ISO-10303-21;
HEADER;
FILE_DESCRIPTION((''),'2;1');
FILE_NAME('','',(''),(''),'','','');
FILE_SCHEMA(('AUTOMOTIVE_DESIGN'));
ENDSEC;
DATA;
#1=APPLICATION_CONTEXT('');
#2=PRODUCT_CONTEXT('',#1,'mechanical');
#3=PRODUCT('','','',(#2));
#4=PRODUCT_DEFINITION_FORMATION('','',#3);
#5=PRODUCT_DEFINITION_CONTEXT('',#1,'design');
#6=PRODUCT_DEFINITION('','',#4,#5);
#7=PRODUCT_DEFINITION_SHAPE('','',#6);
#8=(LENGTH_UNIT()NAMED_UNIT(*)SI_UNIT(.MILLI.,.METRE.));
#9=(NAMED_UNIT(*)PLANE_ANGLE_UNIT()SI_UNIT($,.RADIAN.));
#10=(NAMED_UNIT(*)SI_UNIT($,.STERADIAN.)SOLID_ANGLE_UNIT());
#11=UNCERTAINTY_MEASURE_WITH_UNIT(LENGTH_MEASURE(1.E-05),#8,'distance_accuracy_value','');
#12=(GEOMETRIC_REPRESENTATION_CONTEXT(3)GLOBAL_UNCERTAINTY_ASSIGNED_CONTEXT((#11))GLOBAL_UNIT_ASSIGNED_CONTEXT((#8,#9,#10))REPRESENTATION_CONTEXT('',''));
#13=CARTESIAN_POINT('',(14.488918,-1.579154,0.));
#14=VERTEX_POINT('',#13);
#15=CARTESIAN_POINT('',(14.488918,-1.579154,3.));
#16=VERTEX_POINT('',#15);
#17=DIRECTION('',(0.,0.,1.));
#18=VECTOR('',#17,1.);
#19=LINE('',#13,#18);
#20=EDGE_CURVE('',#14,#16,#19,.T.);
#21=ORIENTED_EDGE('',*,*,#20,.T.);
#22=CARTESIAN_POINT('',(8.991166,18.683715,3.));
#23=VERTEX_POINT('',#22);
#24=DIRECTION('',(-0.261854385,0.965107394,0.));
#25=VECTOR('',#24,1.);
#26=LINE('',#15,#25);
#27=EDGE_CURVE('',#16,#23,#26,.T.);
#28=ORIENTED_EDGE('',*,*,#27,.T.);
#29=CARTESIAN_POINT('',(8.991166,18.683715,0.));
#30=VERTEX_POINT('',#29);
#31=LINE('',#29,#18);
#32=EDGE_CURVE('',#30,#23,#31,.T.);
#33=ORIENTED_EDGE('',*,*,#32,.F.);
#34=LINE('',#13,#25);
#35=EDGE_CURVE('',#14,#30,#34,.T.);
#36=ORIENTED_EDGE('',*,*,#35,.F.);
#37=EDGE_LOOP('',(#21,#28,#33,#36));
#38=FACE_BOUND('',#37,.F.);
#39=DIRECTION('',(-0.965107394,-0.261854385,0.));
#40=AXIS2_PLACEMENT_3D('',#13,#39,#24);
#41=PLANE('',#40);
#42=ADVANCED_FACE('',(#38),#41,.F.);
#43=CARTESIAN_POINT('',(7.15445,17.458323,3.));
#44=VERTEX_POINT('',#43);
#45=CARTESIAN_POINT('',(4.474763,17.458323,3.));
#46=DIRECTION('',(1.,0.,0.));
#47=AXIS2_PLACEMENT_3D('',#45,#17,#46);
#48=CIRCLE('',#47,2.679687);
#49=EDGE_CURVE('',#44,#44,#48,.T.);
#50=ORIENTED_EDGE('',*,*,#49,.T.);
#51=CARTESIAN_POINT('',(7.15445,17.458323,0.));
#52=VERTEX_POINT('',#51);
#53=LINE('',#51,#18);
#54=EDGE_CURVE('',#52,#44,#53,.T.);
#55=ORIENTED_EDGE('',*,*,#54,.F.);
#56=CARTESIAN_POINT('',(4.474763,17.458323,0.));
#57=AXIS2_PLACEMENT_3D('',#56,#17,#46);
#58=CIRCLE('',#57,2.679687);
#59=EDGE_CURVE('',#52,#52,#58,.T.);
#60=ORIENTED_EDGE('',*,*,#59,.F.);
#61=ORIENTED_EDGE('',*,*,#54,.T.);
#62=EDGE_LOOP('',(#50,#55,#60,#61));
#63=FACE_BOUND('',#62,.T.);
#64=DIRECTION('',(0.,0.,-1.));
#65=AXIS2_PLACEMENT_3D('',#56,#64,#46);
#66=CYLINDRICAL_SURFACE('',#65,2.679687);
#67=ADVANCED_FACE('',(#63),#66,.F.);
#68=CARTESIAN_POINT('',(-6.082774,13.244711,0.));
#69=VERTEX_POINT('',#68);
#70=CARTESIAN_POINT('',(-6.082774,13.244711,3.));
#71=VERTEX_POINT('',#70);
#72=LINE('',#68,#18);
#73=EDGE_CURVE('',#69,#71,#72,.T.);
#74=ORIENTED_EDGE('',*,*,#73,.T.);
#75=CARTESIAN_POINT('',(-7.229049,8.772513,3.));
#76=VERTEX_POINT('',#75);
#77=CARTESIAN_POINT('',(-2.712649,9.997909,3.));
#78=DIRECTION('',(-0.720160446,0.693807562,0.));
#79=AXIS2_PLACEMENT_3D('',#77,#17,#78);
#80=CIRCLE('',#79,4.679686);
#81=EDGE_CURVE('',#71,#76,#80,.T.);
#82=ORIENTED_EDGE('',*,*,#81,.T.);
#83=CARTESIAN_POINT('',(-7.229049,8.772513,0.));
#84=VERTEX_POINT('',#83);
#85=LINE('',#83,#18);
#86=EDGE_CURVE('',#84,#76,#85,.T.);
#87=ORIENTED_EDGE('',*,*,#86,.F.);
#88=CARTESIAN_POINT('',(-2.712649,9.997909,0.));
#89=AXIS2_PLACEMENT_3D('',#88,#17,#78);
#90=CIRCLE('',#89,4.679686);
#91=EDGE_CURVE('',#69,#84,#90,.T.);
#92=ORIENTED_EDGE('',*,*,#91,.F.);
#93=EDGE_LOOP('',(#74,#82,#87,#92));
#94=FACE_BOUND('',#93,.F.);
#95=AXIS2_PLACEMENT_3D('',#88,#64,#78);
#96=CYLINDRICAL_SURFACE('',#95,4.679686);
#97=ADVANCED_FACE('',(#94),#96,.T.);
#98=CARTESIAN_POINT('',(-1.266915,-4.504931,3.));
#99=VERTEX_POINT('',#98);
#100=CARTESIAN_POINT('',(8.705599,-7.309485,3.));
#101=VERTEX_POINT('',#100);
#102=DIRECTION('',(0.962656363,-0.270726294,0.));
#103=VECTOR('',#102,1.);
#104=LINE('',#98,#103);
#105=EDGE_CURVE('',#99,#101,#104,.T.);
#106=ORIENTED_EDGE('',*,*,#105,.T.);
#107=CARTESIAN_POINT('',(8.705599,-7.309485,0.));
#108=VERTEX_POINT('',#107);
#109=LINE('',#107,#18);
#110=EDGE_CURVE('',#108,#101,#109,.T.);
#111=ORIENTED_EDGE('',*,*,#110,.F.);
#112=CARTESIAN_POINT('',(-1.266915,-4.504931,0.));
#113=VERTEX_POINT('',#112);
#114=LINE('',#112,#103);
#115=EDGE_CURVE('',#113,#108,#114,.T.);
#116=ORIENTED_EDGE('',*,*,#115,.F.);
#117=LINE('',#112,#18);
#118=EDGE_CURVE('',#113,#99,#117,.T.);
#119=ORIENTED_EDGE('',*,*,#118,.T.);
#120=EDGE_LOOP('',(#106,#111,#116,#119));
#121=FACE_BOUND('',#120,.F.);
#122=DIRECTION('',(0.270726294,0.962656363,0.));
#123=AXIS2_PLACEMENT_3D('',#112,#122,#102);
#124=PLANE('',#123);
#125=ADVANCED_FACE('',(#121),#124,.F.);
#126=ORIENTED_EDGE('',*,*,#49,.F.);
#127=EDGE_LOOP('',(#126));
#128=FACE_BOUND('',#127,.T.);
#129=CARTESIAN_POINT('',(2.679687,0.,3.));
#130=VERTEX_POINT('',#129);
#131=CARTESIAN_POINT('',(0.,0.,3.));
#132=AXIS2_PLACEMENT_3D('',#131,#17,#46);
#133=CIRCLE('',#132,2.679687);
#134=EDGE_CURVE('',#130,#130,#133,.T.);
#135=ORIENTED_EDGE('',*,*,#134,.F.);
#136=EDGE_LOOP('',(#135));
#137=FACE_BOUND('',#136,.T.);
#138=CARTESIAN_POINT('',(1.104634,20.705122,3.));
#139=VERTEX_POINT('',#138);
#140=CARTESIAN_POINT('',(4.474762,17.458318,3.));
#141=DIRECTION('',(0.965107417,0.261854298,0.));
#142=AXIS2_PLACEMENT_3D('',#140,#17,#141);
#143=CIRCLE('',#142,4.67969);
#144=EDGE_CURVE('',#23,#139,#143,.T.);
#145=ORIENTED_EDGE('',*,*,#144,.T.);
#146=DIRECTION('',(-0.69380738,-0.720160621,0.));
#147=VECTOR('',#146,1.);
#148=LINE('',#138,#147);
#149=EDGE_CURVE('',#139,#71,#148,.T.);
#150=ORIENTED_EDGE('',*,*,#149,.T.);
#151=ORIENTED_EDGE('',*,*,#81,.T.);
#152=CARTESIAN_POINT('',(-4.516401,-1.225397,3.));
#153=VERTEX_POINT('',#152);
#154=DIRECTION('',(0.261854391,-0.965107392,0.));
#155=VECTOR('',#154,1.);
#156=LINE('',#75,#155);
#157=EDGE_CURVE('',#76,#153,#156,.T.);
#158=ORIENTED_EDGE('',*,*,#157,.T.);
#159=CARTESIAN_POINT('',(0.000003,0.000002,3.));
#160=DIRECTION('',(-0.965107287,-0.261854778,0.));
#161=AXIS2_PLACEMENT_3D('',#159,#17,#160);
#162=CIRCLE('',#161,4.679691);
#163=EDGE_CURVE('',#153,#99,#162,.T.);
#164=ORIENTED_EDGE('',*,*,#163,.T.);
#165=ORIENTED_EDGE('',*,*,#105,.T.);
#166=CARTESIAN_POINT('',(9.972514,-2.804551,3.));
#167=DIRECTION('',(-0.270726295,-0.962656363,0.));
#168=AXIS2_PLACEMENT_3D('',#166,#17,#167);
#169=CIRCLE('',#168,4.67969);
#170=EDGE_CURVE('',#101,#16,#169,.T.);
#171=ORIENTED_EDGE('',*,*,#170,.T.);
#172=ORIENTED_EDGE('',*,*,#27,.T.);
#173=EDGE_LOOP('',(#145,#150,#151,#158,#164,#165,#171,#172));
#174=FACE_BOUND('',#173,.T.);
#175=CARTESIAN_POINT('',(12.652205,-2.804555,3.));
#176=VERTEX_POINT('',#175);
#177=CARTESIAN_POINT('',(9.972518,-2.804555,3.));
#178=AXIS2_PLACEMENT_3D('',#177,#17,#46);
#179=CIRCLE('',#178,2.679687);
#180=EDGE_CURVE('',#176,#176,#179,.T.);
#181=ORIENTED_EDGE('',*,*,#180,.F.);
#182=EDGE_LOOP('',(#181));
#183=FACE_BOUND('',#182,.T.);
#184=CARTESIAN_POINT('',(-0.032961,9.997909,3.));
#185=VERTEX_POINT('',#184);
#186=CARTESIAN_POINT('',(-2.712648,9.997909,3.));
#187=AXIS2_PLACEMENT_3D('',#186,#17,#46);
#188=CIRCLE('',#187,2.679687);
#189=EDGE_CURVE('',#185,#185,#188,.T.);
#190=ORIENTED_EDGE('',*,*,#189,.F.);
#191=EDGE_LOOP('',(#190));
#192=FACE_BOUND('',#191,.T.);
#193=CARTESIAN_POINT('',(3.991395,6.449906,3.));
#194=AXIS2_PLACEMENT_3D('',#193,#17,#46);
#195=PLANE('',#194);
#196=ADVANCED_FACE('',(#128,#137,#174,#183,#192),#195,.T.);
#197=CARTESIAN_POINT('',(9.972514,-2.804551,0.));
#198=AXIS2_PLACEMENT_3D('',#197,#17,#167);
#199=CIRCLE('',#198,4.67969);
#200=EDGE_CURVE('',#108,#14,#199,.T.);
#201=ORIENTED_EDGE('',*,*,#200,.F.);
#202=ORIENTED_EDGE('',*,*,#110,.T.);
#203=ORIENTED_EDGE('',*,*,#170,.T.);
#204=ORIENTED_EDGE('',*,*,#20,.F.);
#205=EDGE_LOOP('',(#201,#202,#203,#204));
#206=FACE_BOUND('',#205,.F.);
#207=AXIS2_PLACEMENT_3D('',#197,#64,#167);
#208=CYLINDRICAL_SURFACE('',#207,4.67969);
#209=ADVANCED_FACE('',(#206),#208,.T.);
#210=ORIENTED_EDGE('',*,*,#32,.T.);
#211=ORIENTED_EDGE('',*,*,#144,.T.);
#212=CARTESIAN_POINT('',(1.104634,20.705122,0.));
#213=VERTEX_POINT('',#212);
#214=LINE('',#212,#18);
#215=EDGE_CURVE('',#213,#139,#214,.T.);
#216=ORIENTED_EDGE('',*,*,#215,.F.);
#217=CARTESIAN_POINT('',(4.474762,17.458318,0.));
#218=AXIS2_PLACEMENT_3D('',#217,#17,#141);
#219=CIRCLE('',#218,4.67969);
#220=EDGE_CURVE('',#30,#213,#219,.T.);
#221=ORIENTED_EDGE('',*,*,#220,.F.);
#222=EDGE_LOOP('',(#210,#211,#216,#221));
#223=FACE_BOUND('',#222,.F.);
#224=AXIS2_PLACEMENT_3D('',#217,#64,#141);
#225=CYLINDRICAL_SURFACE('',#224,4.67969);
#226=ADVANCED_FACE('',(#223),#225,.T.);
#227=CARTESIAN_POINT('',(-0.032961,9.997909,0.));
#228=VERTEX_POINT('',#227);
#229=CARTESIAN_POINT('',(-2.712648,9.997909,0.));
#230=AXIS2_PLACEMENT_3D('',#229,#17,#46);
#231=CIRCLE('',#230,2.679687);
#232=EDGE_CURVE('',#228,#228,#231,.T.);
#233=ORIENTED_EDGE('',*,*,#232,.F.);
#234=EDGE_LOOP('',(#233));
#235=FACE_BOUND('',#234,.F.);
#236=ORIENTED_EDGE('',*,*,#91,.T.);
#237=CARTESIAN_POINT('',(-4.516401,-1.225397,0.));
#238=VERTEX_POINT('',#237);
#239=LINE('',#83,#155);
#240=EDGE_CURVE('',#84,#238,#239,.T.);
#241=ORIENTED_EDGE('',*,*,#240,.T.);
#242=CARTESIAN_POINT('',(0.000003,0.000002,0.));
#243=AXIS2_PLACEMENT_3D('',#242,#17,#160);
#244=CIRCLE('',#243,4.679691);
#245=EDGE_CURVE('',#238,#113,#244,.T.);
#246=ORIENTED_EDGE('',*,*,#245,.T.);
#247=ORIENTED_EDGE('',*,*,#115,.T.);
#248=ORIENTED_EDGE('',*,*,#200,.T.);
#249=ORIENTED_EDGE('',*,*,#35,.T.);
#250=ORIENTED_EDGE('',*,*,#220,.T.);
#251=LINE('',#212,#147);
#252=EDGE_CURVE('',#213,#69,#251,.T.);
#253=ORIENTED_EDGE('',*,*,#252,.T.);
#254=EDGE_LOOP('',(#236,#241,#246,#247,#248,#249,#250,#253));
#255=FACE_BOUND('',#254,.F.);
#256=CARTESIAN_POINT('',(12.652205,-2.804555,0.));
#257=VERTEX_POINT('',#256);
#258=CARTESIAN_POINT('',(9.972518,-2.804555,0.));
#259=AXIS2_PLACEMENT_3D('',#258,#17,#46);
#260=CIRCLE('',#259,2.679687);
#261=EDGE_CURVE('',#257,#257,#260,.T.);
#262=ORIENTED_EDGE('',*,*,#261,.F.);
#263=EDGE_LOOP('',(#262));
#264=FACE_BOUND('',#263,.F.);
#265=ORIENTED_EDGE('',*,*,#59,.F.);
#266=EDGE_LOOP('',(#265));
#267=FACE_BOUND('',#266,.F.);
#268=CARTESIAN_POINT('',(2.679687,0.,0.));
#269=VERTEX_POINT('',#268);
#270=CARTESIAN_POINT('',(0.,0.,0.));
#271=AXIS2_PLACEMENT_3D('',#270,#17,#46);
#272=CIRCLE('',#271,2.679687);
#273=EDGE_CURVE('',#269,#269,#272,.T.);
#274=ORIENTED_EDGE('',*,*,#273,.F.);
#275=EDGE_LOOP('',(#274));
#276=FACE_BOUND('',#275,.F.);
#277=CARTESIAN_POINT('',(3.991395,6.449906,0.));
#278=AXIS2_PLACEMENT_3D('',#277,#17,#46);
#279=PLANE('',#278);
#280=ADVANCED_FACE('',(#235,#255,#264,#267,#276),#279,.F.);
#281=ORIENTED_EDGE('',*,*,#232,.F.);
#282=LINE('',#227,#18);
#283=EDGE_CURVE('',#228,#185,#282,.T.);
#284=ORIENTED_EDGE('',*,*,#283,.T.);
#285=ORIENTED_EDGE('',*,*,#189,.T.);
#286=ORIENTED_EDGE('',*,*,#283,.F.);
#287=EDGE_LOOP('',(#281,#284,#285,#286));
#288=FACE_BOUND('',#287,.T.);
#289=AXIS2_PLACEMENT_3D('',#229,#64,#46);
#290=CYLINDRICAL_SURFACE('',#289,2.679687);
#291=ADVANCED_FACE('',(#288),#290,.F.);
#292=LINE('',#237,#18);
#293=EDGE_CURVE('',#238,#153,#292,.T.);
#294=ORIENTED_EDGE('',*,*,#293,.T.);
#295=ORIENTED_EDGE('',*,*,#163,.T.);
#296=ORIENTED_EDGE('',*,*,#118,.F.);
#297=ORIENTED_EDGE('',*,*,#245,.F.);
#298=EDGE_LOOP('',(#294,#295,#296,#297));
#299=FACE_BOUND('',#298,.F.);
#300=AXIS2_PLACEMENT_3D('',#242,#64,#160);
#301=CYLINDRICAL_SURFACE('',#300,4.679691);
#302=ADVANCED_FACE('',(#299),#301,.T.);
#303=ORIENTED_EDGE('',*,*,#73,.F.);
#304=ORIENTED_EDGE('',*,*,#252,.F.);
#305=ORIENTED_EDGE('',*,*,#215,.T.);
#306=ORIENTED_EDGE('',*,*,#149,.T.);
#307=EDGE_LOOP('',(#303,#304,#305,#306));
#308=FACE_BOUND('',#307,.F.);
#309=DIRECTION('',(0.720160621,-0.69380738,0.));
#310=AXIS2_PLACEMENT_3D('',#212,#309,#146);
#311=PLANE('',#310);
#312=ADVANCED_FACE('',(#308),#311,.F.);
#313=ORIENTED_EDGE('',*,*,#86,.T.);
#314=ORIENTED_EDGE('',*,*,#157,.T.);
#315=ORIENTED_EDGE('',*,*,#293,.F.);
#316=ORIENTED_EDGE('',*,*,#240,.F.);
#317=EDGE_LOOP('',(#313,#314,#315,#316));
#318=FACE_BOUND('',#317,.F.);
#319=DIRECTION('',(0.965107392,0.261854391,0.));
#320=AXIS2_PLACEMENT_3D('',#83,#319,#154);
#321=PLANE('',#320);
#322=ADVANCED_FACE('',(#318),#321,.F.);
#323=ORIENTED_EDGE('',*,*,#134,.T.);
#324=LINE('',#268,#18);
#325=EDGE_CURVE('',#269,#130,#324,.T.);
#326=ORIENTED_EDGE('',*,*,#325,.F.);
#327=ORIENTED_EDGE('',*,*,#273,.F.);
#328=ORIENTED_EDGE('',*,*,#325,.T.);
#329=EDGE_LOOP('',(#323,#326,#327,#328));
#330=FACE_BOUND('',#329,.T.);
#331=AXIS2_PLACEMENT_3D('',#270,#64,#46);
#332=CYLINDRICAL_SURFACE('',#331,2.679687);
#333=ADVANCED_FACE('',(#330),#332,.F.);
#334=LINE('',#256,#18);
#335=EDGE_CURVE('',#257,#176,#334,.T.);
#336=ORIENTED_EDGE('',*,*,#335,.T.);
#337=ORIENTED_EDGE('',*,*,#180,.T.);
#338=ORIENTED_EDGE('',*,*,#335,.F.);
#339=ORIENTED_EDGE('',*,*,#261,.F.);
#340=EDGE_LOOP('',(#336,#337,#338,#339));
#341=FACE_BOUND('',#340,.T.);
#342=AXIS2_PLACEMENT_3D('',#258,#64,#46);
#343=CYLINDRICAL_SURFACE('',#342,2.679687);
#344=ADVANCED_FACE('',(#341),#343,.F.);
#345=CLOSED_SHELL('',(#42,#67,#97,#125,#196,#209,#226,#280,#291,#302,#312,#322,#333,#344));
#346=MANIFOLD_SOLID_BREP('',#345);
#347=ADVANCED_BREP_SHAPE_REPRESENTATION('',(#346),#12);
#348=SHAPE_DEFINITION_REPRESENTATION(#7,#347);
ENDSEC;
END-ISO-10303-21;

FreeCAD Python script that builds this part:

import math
import FreeCAD as App
import Part
import Sketcher

V = App.Vector
Q = App.Units.Quantity

doc = App.newDocument("Part")
body = doc.addObject("PartDesign::Body", "Body")

sketch1 = body.newObject("Sketcher::SketchObject", "Sketch")
sketch1.AttachmentSupport = (doc.getObject("XY_Plane"), [""])
sketch1.MapMode = "FlatFace"
sketch1.addGeometry(Part.LineSegment(V(1.104634, 20.705122, 0), V(-6.082774, 13.244711, 0)), False)
sketch1.addGeometry(Part.ArcOfCircle(Part.Circle(V(-2.712649, 9.997909, 0), V(0, 0, 1), 4.679686), math.radians(136.067729), math.radians(195.18012)), False)
sketch1.addGeometry(Part.LineSegment(V(-7.229049, 8.772513, 0), V(-4.516401, -1.225397, 0)), False)
sketch1.addGeometry(Part.ArcOfCircle(Part.Circle(V(0.000003, 0.000002, 0), V(0, 0, 1), 4.679691), math.radians(-164.819853), math.radians(-105.707519)), False)
sketch1.addGeometry(Part.LineSegment(V(-1.266915, -4.504931, 0), V(8.705599, -7.309485, 0)), False)
sketch1.addGeometry(Part.ArcOfCircle(Part.Circle(V(9.972514, -2.804551, 0), V(0, 0, 1), 4.67969), math.radians(-105.70749), math.radians(15.180122)), False)
sketch1.addGeometry(Part.LineSegment(V(14.488918, -1.579154, 0), V(8.991166, 18.683715, 0)), False)
sketch1.addGeometry(Part.ArcOfCircle(Part.Circle(V(4.474762, 17.458318, 0), V(0, 0, 1), 4.67969), math.radians(15.180118), math.radians(136.067737)), False)
sketch1.addGeometry(Part.Circle(V(0, 0, 0), V(0, 0, 1), 2.679687), False)
sketch1.addGeometry(Part.Circle(V(9.972518, -2.804555, 0), V(0, 0, 1), 2.679687), False)
sketch1.addGeometry(Part.Circle(V(-2.712648, 9.997909, 0), V(0, 0, 1), 2.679687), False)
sketch1.addGeometry(Part.Circle(V(4.474763, 17.458323, 0), V(0, 0, 1), 2.679687), False)
sketch1.addConstraint(Sketcher.Constraint("Coincident", 0, 2, 1, 1))
sketch1.addConstraint(Sketcher.Constraint("Coincident", 1, 2, 2, 1))
sketch1.addConstraint(Sketcher.Constraint("Coincident", 2, 2, 3, 1))
sketch1.addConstraint(Sketcher.Constraint("Coincident", 3, 2, 4, 1))
sketch1.addConstraint(Sketcher.Constraint("Coincident", 4, 2, 5, 1))
sketch1.addConstraint(Sketcher.Constraint("Coincident", 5, 2, 6, 1))
sketch1.addConstraint(Sketcher.Constraint("Coincident", 6, 2, 7, 1))
sketch1.addConstraint(Sketcher.Constraint("Coincident", 7, 2, 0, 1))
sketch1.addConstraint(Sketcher.Constraint("Coincident", 3, 3, -1, 1))
sketch1.addConstraint(Sketcher.Constraint("Coincident", 8, 3, -1, 1))
sketch1.addConstraint(Sketcher.Constraint("Coincident", 9, 3, 5, 3))
sketch1.addConstraint(Sketcher.Constraint("Coincident", 10, 3, 1, 3))
sketch1.addConstraint(Sketcher.Constraint("Coincident", 11, 3, 7, 3))
sketch1.addConstraint(Sketcher.Constraint("Radius", 3, Q("4.679691 mm")))
sketch1.addConstraint(Sketcher.Constraint("Radius", 5, Q("4.67969 mm")))
sketch1.addConstraint(Sketcher.Constraint("Radius", 7, Q("4.67969 mm")))
sketch1.addConstraint(Sketcher.Constraint("Diameter", 8, Q("5.359374 mm")))
sketch1.addConstraint(Sketcher.Constraint("Diameter", 9, Q("5.359374 mm")))
sketch1.addConstraint(Sketcher.Constraint("Diameter", 10, Q("5.359374 mm")))
sketch1.addConstraint(Sketcher.Constraint("Diameter", 11, Q("5.359374 mm")))
sketch1.addConstraint(Sketcher.Constraint("Radius", 1, Q("4.679686 mm")))
sketch1.addConstraint(Sketcher.Constraint("DistanceX", 2, 2, -1, 1, Q("4.516401 mm")))
sketch1.addConstraint(Sketcher.Constraint("DistanceX", -1, 1, 4, 2, Q("8.705599 mm")))
sketch1.addConstraint(Sketcher.Constraint("DistanceY", 1, 3, 0, 2, Q("3.246802 mm")))
sketch1.addConstraint(Sketcher.Constraint("DistanceX", 1, 2, 1, 3, Q("4.5164 mm")))
sketch1.addConstraint(Sketcher.Constraint("DistanceX", 9, 3, 5, 2, Q("4.5164 mm")))
sketch1.addConstraint(Sketcher.Constraint("DistanceY", 11, 3, 7, 2, Q("3.246799 mm")))
sketch1.addConstraint(Sketcher.Constraint("Distance", 0, Q("10.359371 mm")))
sketch1.addConstraint(Sketcher.Constraint("Distance", 4, Q("10.359371 mm")))
sketch1.addConstraint(Sketcher.Constraint("DistanceX", 1, 3, -1, 1, Q("2.712649 mm")))
sketch1.addConstraint(Sketcher.Constraint("DistanceY", -1, 1, 1, 3, Q("9.997909 mm")))
sketch1.addConstraint(Sketcher.Constraint("DistanceY", 5, 3, -1, 1, Q("2.804551 mm")))
sketch1.addConstraint(Sketcher.Constraint("DistanceX", -1, 1, 9, 3, Q("9.972518 mm")))
sketch1.addConstraint(Sketcher.Constraint("DistanceY", -1, 1, 7, 2, Q("20.705122 mm")))
sketch1.addConstraint(Sketcher.Constraint("DistanceY", 11, 3, 6, 2, Q("1.225392 mm")))
pad1 = body.newObject("PartDesign::Pad", "Pad")
pad1.Profile = sketch1
pad1.Length = 3

doc.recompute()
